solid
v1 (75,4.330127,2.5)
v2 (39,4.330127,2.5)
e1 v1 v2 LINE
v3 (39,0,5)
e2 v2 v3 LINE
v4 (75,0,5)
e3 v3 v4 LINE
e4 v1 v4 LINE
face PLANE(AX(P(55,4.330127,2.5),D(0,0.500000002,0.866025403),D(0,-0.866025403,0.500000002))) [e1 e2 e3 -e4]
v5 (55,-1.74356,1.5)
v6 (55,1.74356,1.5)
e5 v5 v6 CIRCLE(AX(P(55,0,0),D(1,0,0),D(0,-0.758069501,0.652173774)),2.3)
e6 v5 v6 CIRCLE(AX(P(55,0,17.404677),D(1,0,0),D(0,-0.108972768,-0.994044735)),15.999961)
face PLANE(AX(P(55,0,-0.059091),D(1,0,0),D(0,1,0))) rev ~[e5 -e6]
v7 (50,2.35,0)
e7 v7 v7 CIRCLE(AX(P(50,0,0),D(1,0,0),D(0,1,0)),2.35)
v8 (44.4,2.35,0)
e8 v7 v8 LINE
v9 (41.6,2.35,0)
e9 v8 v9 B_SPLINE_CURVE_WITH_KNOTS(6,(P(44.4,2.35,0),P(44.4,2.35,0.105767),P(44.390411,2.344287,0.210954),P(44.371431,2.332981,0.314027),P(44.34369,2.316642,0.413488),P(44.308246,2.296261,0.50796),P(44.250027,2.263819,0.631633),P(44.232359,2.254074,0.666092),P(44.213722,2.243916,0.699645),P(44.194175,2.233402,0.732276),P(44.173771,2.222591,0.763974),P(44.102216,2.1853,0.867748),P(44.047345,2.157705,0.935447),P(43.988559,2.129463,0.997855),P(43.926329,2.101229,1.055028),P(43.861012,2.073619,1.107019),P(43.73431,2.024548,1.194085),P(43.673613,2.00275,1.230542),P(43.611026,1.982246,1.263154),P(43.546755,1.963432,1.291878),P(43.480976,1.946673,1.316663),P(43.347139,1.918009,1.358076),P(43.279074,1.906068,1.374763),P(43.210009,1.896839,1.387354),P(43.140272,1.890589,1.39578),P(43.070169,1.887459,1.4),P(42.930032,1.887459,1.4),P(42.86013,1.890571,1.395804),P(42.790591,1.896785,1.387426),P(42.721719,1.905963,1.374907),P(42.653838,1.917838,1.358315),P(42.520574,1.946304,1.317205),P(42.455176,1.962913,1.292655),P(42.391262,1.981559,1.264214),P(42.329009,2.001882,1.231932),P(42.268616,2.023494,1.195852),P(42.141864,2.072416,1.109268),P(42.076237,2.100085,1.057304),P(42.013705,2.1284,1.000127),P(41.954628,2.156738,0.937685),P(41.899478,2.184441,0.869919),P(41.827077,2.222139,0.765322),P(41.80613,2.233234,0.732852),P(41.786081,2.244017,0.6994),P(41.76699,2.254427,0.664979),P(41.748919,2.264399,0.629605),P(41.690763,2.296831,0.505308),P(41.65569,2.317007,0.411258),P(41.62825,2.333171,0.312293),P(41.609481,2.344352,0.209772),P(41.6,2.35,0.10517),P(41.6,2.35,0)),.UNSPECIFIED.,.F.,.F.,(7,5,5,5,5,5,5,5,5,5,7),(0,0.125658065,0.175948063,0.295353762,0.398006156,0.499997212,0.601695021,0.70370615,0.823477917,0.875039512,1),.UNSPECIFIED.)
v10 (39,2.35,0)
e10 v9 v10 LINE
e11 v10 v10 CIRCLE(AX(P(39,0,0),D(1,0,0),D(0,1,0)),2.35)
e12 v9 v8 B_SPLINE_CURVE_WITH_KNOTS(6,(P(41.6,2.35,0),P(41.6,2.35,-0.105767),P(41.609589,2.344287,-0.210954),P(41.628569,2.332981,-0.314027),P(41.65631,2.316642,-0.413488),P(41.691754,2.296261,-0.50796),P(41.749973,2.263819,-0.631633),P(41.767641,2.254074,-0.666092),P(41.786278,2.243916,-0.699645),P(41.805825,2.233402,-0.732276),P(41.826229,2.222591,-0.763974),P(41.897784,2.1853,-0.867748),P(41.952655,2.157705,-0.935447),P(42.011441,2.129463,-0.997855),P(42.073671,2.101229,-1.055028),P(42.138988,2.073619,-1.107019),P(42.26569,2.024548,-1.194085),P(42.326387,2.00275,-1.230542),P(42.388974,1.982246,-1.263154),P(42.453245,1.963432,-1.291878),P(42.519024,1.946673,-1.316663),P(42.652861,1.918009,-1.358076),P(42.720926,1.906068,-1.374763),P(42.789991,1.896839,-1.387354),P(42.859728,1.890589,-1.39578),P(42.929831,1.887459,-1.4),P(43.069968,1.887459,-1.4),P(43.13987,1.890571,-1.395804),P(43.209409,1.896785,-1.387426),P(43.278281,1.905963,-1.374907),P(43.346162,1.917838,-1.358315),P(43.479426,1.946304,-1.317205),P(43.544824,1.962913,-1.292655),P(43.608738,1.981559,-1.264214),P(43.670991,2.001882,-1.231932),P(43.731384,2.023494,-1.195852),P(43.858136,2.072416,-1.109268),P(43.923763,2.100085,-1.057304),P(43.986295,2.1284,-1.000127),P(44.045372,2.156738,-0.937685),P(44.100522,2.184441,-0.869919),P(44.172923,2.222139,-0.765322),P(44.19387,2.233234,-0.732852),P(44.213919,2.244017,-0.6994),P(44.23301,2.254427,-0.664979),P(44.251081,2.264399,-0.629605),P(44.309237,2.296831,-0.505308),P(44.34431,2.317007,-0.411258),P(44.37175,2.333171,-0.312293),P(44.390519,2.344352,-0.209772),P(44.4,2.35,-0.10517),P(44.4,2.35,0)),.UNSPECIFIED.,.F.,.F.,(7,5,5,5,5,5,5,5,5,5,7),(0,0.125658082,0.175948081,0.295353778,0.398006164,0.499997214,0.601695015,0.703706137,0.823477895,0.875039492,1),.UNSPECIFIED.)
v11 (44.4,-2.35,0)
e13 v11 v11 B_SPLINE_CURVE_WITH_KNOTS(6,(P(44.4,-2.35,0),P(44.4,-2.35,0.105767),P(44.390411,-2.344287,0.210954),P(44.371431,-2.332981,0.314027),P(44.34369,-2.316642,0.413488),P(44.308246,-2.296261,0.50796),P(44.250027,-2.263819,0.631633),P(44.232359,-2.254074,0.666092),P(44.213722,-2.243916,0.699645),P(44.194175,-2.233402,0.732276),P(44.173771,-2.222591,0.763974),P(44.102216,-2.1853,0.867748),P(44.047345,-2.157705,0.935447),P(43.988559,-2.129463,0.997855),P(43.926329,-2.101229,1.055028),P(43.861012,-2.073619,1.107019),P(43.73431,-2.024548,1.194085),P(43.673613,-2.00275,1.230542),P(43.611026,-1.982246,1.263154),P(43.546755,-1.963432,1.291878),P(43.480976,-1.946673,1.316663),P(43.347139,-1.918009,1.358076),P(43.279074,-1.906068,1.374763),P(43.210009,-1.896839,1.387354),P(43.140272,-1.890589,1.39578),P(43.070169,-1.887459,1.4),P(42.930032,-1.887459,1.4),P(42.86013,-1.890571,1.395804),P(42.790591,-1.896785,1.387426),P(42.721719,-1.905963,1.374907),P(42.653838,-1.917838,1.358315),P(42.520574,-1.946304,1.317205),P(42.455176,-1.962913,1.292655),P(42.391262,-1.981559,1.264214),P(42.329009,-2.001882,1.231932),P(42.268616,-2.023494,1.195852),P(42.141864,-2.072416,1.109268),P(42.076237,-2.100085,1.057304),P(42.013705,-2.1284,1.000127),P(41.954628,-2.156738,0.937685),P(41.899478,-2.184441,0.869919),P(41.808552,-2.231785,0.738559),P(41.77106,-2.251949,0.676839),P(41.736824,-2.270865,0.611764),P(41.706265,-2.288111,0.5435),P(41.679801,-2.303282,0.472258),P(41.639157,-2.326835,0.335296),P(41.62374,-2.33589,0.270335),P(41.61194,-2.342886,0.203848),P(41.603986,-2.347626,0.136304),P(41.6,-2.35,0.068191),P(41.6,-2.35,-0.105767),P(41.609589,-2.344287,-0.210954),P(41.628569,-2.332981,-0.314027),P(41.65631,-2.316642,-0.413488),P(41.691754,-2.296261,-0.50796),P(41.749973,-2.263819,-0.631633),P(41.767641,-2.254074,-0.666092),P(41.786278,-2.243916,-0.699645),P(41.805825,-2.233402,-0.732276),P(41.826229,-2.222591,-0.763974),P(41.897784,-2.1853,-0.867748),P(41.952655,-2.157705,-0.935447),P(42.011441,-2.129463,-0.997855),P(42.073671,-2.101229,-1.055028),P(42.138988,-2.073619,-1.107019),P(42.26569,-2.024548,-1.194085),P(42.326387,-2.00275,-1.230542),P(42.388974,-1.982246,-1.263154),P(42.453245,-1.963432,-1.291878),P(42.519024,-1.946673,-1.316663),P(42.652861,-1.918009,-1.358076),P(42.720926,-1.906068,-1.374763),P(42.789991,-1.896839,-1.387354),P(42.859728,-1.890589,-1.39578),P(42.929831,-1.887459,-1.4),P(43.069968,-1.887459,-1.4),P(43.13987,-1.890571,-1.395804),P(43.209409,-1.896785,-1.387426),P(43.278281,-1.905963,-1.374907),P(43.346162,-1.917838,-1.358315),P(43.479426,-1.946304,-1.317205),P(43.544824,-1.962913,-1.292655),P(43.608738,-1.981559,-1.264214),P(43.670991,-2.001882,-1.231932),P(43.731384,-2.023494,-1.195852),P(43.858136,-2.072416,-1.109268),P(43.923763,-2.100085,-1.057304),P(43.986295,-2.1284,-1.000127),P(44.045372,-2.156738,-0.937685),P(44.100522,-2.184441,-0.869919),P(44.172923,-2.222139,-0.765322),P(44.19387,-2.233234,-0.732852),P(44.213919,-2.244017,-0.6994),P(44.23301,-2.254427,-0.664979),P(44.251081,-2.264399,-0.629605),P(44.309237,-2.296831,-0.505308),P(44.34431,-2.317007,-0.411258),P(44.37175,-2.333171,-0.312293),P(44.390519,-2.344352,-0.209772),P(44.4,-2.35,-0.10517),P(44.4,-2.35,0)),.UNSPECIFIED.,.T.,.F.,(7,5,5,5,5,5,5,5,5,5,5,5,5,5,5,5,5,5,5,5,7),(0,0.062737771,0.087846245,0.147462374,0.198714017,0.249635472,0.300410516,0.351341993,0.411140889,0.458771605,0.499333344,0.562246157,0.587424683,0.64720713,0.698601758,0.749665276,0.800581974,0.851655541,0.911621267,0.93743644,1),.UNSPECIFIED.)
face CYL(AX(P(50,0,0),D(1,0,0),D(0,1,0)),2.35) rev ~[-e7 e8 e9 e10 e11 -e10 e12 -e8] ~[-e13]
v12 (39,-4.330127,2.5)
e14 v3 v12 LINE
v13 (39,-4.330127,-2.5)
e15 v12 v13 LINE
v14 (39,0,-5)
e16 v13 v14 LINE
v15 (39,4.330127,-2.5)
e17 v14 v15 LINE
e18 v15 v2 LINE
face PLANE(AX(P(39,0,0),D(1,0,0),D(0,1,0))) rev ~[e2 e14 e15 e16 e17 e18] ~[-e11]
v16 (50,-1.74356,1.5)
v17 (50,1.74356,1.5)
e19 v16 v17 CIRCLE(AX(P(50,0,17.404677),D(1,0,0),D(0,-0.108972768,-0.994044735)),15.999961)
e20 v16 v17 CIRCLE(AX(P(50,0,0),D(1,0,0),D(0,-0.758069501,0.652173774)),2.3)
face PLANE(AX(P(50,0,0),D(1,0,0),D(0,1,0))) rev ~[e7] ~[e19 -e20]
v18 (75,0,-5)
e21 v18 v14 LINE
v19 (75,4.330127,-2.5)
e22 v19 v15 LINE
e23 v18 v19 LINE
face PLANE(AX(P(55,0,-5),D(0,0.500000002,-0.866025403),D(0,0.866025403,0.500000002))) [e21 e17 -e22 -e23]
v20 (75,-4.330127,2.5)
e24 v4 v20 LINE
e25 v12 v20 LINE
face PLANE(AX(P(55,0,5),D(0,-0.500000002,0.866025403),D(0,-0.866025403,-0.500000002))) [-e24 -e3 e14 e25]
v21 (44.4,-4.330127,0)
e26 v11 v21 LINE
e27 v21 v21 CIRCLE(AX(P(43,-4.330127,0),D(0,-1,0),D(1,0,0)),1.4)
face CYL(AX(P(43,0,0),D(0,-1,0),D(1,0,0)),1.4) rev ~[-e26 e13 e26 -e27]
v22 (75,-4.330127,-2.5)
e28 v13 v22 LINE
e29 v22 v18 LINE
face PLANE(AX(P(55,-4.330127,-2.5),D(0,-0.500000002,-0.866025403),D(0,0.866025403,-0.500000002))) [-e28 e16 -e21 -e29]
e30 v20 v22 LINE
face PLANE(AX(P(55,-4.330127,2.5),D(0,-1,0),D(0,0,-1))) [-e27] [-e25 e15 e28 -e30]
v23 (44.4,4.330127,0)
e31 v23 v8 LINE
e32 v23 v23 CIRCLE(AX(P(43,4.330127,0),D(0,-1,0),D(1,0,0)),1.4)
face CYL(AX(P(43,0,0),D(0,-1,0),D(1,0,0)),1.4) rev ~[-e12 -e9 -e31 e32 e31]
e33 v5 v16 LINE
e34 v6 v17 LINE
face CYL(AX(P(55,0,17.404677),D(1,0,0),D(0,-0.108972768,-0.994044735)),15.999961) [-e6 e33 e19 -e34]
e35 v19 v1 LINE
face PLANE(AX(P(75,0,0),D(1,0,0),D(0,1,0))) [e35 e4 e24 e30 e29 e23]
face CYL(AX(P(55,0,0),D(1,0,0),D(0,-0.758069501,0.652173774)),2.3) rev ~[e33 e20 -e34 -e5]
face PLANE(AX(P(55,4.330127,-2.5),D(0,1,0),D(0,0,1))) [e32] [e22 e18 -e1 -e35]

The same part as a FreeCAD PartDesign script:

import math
import FreeCAD as App
import Part
import Sketcher
Q = App.Units.Quantity

doc = App.newDocument("Part")
body = doc.addObject("PartDesign::Body", "Body")

sketch1 = doc.addObject("Sketcher::SketchObject", "Sketch")
body.addObject(sketch1)
sketch1.AttachmentSupport = (doc.XZ_Plane, [""])
sketch1.MapMode = "FlatFace"
sketch1.addGeometry(Part.Circle(App.Vector(43, 0, 0), App.Vector(0, 0, 1), 1.4), False)
sketch1.addConstraint([
    Sketcher.Constraint("PointOnObject", 0, 3, -1),
    Sketcher.Constraint("Diameter", 0, Q("2.8 mm")),
    Sketcher.Constraint("DistanceX", -1, 1, 0, 3, Q("43 mm")),
])
pad1 = doc.addObject("PartDesign::Pad", "Pad")
body.addObject(pad1)
pad1.Profile = sketch1
pad1.Length = 20
pad1.Midplane = True
body2 = doc.addObject("PartDesign::Body", "Body001")

sketch2 = doc.addObject("Sketcher::SketchObject", "Sketch001")
body2.addObject(sketch2)
sketch2.AttachmentSupport = (doc.getObject("YZ_Plane001"), [""])
sketch2.MapMode = "FlatFace"
sketch2.AttachmentOffset = App.Placement(App.Vector(0, 0, 50), App.Rotation())
sketch2.addGeometry(Part.Circle(App.Vector(0, 0, 0), App.Vector(0, 0, 1), 2.4), False)
sketch2.addConstraint([
    Sketcher.Constraint("Coincident", 0, 3, -1, 1),
    Sketcher.Constraint("Diameter", 0, Q("4.7 mm")),
])
pad2 = doc.addObject("PartDesign::Pad", "Pad001")
body2.addObject(pad2)
pad2.Profile = sketch2
pad2.Length = 100
pad2.Reversed = True
body3 = doc.addObject("PartDesign::Body", "Body002")

sketch3 = doc.addObject("Sketcher::SketchObject", "Sketch002")
body3.addObject(sketch3)
sketch3.AttachmentSupport = (doc.getObject("YZ_Plane002"), [""])
sketch3.MapMode = "FlatFace"
sketch3.AttachmentOffset = App.Placement(App.Vector(0, 0, 55), App.Rotation())
sketch3.addGeometry([
    Part.ArcOfCircle(Part.Circle(App.Vector(0, 0, 0), App.Vector(0, 0, 1), 2.3), math.radians(139), math.radians(401)),
    Part.ArcOfCircle(Part.Circle(App.Vector(0, 17.4, 0), App.Vector(0, 0, 1), 16), math.radians(-96.26), math.radians(-83.74)),
], False)
sketch3.addConstraint([
    Sketcher.Constraint("Coincident", 0, 1, 1, 1),
    Sketcher.Constraint("Coincident", 1, 2, 0, 2),
    Sketcher.Constraint("Coincident", 0, 3, -1, 1),
    Sketcher.Constraint("PointOnObject", 1, 3, -2),
    Sketcher.Constraint("Radius", 0, Q("2.3 mm")),
    Sketcher.Constraint("DistanceY", -1, 1, 0, 1, Q("1.5 mm")),
    Sketcher.Constraint("Radius", 1, Q("15.999961 mm")),
])
pad3 = doc.addObject("PartDesign::Pad", "Pad002")
body3.addObject(pad3)
pad3.Profile = sketch3
pad3.Length = 100
pad3.Reversed = True
doc.recompute()

boolean = doc.addObject("PartDesign::Boolean", "Boolean")
body3.addObject(boolean)
boolean.Type = "Fuse"
boolean.addObjects([body2])
body4 = doc.addObject("PartDesign::Body", "Body003")

sketch4 = doc.addObject("Sketcher::SketchObject", "Sketch003")
body4.addObject(sketch4)
sketch4.AttachmentSupport = (doc.getObject("YZ_Plane003"), [""])
sketch4.MapMode = "FlatFace"
sketch4.AttachmentOffset = App.Placement(App.Vector(0, 0, 55), App.Rotation())
sketch4.addGeometry([
    Part.LineSegment(App.Vector(4.3, 2.5, 0), App.Vector(0, 5, 0)),
    Part.LineSegment(App.Vector(0, 5, 0), App.Vector(-4.3, 2.5, 0)),
    Part.LineSegment(App.Vector(-4.3, 2.5, 0), App.Vector(-4.3, -2.5, 0)),
    Part.LineSegment(App.Vector(-4.3, -2.5, 0), App.Vector(0, -5, 0)),
    Part.LineSegment(App.Vector(0, -5, 0), App.Vector(4.3, -2.5, 0)),
    Part.LineSegment(App.Vector(4.3, -2.5, 0), App.Vector(4.3, 2.5, 0)),
], False)
sketch4.addConstraint([
    Sketcher.Constraint("Coincident", 0, 2, 1, 1),
    Sketcher.Constraint("Coincident", 1, 2, 2, 1),
    Sketcher.Constraint("Coincident", 2, 2, 3, 1),
    Sketcher.Constraint("Coincident", 3, 2, 4, 1),
    Sketcher.Constraint("Coincident", 4, 2, 5, 1),
    Sketcher.Constraint("Coincident", 5, 2, 0, 1),
    Sketcher.Constraint("Vertical", 2),
    Sketcher.Constraint("Vertical", 5),
    Sketcher.Constraint("Symmetric", 0, 2, 3, 2, -1, 1),
    Sketcher.Constraint("Symmetric", 1, 2, 4, 2, -1, 1),
    Sketcher.Constraint("PointOnObject", 0, 2, -2),
    Sketcher.Constraint("Parallel", 0, 3),
    Sketcher.Constraint("Horizontal", 2, 2, 4, 2),
    Sketcher.Constraint("DistanceY", 2, 2, 2, 1, Q("5 mm")),
    Sketcher.Constraint("Angle", 0, Q("150 deg")),
    Sketcher.Constraint("Distance", 0, Q("5 mm")),
])
pad4 = doc.addObject("PartDesign::Pad", "Pad003")
body4.addObject(pad4)
pad4.Profile = sketch4
pad4.Type = "TwoLengths"
pad4.Length = 20
pad4.Length2 = 16
doc.recompute()

boolean2 = doc.addObject("PartDesign::Boolean", "Boolean001")
body4.addObject(boolean2)
boolean2.Type = "Cut"
boolean2.addObjects([body3])
doc.recompute()

boolean3 = doc.addObject("PartDesign::Boolean", "Boolean002")
body4.addObject(boolean3)
boolean3.Type = "Cut"
boolean3.addObjects([body])

doc.recompute()
